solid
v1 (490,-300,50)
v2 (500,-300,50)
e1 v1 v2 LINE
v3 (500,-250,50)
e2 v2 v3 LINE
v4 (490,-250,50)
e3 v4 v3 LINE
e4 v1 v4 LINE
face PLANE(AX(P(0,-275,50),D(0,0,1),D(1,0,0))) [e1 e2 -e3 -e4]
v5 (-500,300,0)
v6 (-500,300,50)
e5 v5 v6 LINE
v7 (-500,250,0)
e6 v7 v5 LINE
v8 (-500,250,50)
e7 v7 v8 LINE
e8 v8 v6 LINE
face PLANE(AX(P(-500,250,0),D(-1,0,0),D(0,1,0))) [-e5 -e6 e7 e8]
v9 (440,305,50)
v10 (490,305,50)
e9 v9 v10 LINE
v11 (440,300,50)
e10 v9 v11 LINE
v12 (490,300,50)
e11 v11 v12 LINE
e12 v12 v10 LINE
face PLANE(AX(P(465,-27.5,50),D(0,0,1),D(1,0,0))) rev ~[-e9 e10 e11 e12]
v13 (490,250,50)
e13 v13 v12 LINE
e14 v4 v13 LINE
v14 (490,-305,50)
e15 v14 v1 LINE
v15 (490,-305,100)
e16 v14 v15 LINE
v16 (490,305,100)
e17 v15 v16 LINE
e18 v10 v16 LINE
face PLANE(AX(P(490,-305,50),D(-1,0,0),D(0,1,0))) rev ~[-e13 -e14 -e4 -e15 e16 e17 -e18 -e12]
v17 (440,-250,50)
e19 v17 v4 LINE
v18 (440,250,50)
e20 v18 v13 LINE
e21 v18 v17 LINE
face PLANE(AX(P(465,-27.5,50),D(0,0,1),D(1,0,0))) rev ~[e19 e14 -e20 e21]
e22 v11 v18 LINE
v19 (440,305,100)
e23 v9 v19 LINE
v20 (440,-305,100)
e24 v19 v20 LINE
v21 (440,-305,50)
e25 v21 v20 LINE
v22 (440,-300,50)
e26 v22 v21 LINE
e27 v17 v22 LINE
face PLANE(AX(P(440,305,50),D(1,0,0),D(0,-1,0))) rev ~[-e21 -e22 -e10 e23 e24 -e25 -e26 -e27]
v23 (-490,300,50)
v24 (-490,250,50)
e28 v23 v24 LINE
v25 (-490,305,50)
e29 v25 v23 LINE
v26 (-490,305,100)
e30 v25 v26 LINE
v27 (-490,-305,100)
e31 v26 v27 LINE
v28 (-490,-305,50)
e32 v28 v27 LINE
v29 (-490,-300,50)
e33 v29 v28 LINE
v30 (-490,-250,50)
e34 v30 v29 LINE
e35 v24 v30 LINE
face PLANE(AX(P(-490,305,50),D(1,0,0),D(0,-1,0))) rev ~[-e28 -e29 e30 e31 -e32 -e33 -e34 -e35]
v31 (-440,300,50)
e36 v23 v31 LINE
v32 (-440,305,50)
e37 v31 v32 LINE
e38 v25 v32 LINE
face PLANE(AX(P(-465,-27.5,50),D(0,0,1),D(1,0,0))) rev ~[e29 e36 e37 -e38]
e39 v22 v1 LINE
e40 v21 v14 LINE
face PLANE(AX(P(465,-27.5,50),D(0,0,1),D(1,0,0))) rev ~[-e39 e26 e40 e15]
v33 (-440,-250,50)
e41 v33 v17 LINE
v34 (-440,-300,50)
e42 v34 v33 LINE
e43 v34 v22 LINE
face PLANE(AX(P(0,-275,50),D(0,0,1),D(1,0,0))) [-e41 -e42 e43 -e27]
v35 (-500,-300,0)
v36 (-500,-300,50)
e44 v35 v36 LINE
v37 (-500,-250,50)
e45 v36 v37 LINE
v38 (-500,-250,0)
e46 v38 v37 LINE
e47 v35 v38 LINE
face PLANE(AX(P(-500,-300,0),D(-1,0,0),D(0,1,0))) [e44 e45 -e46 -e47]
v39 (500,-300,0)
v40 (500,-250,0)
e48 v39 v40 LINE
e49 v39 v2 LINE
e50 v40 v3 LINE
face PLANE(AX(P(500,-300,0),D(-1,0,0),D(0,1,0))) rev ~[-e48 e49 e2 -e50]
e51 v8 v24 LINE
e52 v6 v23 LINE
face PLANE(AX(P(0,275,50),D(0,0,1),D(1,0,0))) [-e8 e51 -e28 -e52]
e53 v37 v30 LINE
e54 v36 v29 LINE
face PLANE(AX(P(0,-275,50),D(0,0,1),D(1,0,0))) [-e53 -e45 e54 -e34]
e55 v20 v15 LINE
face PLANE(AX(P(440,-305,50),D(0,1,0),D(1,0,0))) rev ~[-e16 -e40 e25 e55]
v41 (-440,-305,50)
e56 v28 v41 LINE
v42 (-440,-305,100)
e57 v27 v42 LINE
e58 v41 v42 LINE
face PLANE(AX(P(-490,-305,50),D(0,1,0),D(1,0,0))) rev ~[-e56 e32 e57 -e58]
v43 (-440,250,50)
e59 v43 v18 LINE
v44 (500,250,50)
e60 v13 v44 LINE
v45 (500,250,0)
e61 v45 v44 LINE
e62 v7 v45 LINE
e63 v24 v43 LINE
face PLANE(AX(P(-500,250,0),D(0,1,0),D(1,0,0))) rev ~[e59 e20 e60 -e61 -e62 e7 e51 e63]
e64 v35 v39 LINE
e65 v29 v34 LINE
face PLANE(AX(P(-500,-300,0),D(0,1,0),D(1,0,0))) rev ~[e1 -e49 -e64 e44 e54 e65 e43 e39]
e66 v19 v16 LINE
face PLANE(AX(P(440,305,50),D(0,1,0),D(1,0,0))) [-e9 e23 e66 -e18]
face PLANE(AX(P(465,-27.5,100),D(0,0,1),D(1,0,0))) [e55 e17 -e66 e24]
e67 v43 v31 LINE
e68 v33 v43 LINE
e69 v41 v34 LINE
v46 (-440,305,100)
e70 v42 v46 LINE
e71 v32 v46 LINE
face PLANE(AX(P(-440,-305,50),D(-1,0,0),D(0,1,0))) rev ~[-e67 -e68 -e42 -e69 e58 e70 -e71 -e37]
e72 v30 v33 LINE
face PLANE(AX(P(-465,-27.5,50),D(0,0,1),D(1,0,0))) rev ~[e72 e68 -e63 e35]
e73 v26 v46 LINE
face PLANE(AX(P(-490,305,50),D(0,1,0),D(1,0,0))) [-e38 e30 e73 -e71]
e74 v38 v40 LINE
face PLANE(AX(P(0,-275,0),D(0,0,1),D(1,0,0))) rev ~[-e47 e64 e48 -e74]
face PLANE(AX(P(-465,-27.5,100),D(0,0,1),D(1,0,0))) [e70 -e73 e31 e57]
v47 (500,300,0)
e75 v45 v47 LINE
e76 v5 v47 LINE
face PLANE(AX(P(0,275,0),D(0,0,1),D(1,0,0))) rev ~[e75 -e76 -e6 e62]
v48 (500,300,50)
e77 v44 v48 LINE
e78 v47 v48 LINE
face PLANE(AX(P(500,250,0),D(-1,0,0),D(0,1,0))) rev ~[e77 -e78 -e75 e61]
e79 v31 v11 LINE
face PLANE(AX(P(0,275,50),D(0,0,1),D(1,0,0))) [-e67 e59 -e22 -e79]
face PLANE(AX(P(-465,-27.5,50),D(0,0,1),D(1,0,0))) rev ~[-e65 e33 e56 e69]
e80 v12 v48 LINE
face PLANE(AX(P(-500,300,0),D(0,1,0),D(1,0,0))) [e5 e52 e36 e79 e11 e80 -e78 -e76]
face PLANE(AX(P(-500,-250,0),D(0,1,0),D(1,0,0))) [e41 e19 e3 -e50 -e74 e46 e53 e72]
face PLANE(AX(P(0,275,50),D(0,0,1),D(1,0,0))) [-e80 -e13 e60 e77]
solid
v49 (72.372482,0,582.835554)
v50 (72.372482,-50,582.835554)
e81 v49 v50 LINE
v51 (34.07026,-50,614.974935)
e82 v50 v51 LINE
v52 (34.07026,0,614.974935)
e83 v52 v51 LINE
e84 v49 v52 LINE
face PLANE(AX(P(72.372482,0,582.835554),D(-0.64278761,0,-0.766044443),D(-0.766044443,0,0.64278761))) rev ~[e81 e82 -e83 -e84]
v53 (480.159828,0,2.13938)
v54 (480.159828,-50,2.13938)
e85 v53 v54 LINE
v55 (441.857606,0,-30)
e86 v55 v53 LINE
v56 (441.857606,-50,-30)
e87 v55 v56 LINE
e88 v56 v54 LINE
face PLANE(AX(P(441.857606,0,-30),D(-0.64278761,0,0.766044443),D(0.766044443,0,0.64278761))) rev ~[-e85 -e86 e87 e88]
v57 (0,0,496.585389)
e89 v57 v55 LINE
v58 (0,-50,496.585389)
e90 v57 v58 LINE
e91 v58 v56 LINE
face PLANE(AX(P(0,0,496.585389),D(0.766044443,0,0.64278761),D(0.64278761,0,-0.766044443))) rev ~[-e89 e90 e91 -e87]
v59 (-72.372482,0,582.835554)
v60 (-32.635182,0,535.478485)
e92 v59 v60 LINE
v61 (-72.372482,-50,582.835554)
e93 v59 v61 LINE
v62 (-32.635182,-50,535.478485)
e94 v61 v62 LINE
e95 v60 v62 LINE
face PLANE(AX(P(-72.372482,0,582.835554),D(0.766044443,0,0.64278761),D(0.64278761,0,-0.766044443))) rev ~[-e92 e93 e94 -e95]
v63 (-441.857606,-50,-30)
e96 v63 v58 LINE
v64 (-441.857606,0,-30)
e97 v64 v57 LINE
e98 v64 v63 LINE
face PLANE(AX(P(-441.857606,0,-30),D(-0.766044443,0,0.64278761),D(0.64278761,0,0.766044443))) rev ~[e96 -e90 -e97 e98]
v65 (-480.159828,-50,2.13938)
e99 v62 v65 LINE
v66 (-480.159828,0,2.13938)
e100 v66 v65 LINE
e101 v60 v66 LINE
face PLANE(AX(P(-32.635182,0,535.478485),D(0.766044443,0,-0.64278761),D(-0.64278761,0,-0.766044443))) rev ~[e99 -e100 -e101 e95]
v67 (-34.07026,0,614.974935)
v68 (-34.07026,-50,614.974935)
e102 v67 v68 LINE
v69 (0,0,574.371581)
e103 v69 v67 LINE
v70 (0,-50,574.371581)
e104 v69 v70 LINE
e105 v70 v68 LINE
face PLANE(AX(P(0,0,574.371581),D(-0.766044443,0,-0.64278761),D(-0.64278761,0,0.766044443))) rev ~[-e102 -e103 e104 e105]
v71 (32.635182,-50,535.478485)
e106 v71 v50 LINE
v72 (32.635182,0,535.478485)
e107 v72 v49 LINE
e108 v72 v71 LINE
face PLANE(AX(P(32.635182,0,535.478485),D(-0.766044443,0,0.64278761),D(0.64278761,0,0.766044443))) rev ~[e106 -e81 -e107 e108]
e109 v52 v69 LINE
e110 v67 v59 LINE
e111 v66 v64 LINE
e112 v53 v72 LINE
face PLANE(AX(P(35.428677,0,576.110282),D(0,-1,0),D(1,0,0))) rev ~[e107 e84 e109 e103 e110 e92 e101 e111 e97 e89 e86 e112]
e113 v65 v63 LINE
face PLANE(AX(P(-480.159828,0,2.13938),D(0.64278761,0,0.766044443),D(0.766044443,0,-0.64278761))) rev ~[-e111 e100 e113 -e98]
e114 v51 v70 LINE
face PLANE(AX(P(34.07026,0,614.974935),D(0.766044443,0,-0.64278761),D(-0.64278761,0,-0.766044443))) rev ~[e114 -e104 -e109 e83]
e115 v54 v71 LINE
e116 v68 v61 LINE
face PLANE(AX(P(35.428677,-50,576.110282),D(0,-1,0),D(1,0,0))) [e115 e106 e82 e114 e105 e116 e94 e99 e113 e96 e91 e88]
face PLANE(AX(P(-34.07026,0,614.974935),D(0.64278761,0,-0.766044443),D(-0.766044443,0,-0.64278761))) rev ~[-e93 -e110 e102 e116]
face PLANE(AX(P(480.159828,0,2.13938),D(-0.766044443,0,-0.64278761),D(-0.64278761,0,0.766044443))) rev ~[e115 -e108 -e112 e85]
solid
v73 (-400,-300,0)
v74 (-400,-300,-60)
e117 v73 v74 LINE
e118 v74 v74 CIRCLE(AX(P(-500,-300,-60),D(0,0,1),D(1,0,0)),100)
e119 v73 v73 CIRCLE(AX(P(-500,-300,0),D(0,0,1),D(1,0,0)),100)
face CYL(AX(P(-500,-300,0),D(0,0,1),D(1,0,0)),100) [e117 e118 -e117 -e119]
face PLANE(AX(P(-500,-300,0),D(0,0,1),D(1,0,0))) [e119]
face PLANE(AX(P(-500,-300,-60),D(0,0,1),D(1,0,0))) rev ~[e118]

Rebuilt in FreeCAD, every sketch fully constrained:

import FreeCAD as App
import Part
import Sketcher

V = App.Vector
Q = App.Units.Quantity


def add_polygon(sketch, points):
    """Adds a closed chain of lines whose ends are joined by coincident constraints."""
    first, n = sketch.GeometryCount, len(points)
    for a, b in zip(points, points[1:] + points[:1]):
        sketch.addGeometry(Part.LineSegment(App.Vector(*a, 0), App.Vector(*b, 0)), False)
    for i in range(n):
        sketch.addConstraint(Sketcher.Constraint("Coincident", first + i, 2, first + (i + 1) % n, 1))

doc = App.newDocument("Part")
body = doc.addObject("PartDesign::Body", "Body")

sketch1 = body.newObject("Sketcher::SketchObject", "Sketch")
sketch1.AttachmentSupport = (doc.getObject("XY_Plane"), [""])
sketch1.MapMode = "FlatFace"
add_polygon(sketch1, [(-500, 300), (-500, 250), (500, 250), (500, 300)])
sketch1.addConstraint([
    Sketcher.Constraint("Vertical", 0),
    Sketcher.Constraint("Horizontal", 1),
    Sketcher.Constraint("Vertical", 2),
    Sketcher.Constraint("Horizontal", 3),
    Sketcher.Constraint("DistanceX", 1, 1, 1, 2, Q("1000 mm")),
    Sketcher.Constraint("DistanceY", 0, 2, 0, 1, Q("50 mm")),
    Sketcher.Constraint("DistanceX", 0, 2, -1, 1, Q("500 mm")),
    Sketcher.Constraint("DistanceY", -1, 1, 0, 2, Q("250 mm")),
])
pad1 = body.newObject("PartDesign::Pad", "Pad")
pad1.Profile = sketch1
pad1.Length = 50
body2 = doc.addObject("PartDesign::Body", "Body001")

sketch2 = body2.newObject("Sketcher::SketchObject", "Sketch001")
sketch2.AttachmentSupport = (doc.getObject("XY_Plane001"), [""])
sketch2.MapMode = "FlatFace"
add_polygon(sketch2, [(-500, -250), (-500, -300), (500, -300), (500, -250)])
sketch2.addConstraint([
    Sketcher.Constraint("Vertical", 0),
    Sketcher.Constraint("Horizontal", 1),
    Sketcher.Constraint("Vertical", 2),
    Sketcher.Constraint("Horizontal", 3),
    Sketcher.Constraint("DistanceX", 1, 1, 1, 2, Q("1000 mm")),
    Sketcher.Constraint("DistanceY", 0, 2, 0, 1, Q("50 mm")),
    Sketcher.Constraint("DistanceX", 0, 2, -1, 1, Q("500 mm")),
    Sketcher.Constraint("DistanceY", 0, 2, -1, 1, Q("300 mm")),
])
pad2 = body2.newObject("PartDesign::Pad", "Pad001")
pad2.Profile = sketch2
pad2.Length = 50
body.AllowCompound = True
doc.recompute()

boolean = body.newObject("PartDesign::Boolean", "Boolean")
boolean.Type = "Fuse"
boolean.addObjects([body2])

sketch3 = body.newObject("Sketcher::SketchObject", "Sketch002")
sketch3.AttachmentSupport = (doc.getObject("XY_Plane"), [""])
sketch3.MapMode = "FlatFace"
sketch3.AttachmentOffset = App.Placement(V(0, 0, 50), App.Rotation())
add_polygon(sketch3, [(-490, -305), (-440, -305), (-440, 305), (-490, 305)])
add_polygon(sketch3, [(440, -305), (490, -305), (490, 305), (440, 305)])
sketch3.addConstraint([
    Sketcher.Constraint("Horizontal", 0),
    Sketcher.Constraint("Vertical", 1),
    Sketcher.Constraint("Horizontal", 2),
    Sketcher.Constraint("Vertical", 3),
    Sketcher.Constraint("Horizontal", 4),
    Sketcher.Constraint("Vertical", 5),
    Sketcher.Constraint("Horizontal", 6),
    Sketcher.Constraint("Vertical", 7),
    Sketcher.Constraint("Symmetric", 2, 2, 4, 2, -1, 1),
    Sketcher.Constraint("Symmetric", 0, 2, 6, 2, -1, 1),
    Sketcher.Constraint("Horizontal", 3, 2, 4, 2),
    Sketcher.Constraint("DistanceX", 0, 1, 0, 2, Q("50 mm")),
    Sketcher.Constraint("DistanceY", 1, 1, 1, 2, Q("610 mm")),
    Sketcher.Constraint("DistanceX", 0, 2, -1, 1, Q("440 mm")),
])
pad3 = body.newObject("PartDesign::Pad", "Pad002")
pad3.Profile = sketch3
pad3.Length = 50
body3 = doc.addObject("PartDesign::Body", "Body002")

sketch4 = body3.newObject("Sketcher::SketchObject", "Sketch003")
sketch4.AttachmentSupport = (doc.getObject("XZ_Plane002"), [""])
sketch4.MapMode = "FlatFace"
add_polygon(sketch4, [(72, 583), (34, 615), (0, 574), (-34, 615), (-72, 583), (-33, 535), (-480, 2), (-442, -30), (0, 497), (442, -30), (480, 2), (33, 535)])
sketch4.addConstraint([
    Sketcher.Constraint("Symmetric", 0, 2, 2, 2, -2),
    Sketcher.Constraint("Symmetric", 6, 2, 8, 2, -2),
    Sketcher.Constraint("Symmetric", 5, 2, 9, 2, -2),
    Sketcher.Constraint("Symmetric", 4, 2, 10, 2, -2),
    Sketcher.Constraint("Symmetric", 3, 2, 11, 2, -2),
    Sketcher.Constraint("PointOnObject", 1, 2, -2),
    Sketcher.Constraint("PointOnObject", 7, 2, -2),
    Sketcher.Constraint("Perpendicular", 0, 1),
    Sketcher.Constraint("Perpendicular", 3, 4),
    Sketcher.Constraint("Parallel", 1, 5),
    Sketcher.Constraint("Perpendicular", 5, 6),
    Sketcher.Constraint("Perpendicular", 6, 7),
    Sketcher.Constraint("Equal", 3, 6),
    Sketcher.Constraint("Angle", 0, Q("140 deg")),
    Sketcher.Constraint("Distance", 0, Q("50 mm")),
    Sketcher.Constraint("DistanceY", 6, 2, -1, 1, Q("30 mm")),
    Sketcher.Constraint("DistanceX", 3, 2, 4, 2, Q("39.737299 mm")),
    Sketcher.Constraint("DistanceY", 5, 2, 1, 2, Q("572.2322 mm")),
    Sketcher.Constraint("DistanceX", -1, 1, 0, 2, Q("34.07026 mm")),
])
pad4 = body3.newObject("PartDesign::Pad", "Pad003")
pad4.Profile = sketch4
pad4.Length = 50
body4 = doc.addObject("PartDesign::Body", "Body003")

sketch5 = body4.newObject("Sketcher::SketchObject", "Sketch004")
sketch5.AttachmentSupport = (doc.getObject("XY_Plane003"), [""])
sketch5.MapMode = "FlatFace"
sketch5.addGeometry(Part.Circle(V(-500, -300, 0), V(0, 0, 1), 100), False)
sketch5.addConstraint([
    Sketcher.Constraint("Diameter", 0, Q("200 mm")),
    Sketcher.Constraint("DistanceX", 0, 3, -1, 1, Q("500 mm")),
    Sketcher.Constraint("DistanceY", 0, 3, -1, 1, Q("300 mm")),
])
pad5 = body4.newObject("PartDesign::Pad", "Pad004")
pad5.Profile = sketch5
pad5.Length = 60
pad5.Reversed = True

doc.recompute()
